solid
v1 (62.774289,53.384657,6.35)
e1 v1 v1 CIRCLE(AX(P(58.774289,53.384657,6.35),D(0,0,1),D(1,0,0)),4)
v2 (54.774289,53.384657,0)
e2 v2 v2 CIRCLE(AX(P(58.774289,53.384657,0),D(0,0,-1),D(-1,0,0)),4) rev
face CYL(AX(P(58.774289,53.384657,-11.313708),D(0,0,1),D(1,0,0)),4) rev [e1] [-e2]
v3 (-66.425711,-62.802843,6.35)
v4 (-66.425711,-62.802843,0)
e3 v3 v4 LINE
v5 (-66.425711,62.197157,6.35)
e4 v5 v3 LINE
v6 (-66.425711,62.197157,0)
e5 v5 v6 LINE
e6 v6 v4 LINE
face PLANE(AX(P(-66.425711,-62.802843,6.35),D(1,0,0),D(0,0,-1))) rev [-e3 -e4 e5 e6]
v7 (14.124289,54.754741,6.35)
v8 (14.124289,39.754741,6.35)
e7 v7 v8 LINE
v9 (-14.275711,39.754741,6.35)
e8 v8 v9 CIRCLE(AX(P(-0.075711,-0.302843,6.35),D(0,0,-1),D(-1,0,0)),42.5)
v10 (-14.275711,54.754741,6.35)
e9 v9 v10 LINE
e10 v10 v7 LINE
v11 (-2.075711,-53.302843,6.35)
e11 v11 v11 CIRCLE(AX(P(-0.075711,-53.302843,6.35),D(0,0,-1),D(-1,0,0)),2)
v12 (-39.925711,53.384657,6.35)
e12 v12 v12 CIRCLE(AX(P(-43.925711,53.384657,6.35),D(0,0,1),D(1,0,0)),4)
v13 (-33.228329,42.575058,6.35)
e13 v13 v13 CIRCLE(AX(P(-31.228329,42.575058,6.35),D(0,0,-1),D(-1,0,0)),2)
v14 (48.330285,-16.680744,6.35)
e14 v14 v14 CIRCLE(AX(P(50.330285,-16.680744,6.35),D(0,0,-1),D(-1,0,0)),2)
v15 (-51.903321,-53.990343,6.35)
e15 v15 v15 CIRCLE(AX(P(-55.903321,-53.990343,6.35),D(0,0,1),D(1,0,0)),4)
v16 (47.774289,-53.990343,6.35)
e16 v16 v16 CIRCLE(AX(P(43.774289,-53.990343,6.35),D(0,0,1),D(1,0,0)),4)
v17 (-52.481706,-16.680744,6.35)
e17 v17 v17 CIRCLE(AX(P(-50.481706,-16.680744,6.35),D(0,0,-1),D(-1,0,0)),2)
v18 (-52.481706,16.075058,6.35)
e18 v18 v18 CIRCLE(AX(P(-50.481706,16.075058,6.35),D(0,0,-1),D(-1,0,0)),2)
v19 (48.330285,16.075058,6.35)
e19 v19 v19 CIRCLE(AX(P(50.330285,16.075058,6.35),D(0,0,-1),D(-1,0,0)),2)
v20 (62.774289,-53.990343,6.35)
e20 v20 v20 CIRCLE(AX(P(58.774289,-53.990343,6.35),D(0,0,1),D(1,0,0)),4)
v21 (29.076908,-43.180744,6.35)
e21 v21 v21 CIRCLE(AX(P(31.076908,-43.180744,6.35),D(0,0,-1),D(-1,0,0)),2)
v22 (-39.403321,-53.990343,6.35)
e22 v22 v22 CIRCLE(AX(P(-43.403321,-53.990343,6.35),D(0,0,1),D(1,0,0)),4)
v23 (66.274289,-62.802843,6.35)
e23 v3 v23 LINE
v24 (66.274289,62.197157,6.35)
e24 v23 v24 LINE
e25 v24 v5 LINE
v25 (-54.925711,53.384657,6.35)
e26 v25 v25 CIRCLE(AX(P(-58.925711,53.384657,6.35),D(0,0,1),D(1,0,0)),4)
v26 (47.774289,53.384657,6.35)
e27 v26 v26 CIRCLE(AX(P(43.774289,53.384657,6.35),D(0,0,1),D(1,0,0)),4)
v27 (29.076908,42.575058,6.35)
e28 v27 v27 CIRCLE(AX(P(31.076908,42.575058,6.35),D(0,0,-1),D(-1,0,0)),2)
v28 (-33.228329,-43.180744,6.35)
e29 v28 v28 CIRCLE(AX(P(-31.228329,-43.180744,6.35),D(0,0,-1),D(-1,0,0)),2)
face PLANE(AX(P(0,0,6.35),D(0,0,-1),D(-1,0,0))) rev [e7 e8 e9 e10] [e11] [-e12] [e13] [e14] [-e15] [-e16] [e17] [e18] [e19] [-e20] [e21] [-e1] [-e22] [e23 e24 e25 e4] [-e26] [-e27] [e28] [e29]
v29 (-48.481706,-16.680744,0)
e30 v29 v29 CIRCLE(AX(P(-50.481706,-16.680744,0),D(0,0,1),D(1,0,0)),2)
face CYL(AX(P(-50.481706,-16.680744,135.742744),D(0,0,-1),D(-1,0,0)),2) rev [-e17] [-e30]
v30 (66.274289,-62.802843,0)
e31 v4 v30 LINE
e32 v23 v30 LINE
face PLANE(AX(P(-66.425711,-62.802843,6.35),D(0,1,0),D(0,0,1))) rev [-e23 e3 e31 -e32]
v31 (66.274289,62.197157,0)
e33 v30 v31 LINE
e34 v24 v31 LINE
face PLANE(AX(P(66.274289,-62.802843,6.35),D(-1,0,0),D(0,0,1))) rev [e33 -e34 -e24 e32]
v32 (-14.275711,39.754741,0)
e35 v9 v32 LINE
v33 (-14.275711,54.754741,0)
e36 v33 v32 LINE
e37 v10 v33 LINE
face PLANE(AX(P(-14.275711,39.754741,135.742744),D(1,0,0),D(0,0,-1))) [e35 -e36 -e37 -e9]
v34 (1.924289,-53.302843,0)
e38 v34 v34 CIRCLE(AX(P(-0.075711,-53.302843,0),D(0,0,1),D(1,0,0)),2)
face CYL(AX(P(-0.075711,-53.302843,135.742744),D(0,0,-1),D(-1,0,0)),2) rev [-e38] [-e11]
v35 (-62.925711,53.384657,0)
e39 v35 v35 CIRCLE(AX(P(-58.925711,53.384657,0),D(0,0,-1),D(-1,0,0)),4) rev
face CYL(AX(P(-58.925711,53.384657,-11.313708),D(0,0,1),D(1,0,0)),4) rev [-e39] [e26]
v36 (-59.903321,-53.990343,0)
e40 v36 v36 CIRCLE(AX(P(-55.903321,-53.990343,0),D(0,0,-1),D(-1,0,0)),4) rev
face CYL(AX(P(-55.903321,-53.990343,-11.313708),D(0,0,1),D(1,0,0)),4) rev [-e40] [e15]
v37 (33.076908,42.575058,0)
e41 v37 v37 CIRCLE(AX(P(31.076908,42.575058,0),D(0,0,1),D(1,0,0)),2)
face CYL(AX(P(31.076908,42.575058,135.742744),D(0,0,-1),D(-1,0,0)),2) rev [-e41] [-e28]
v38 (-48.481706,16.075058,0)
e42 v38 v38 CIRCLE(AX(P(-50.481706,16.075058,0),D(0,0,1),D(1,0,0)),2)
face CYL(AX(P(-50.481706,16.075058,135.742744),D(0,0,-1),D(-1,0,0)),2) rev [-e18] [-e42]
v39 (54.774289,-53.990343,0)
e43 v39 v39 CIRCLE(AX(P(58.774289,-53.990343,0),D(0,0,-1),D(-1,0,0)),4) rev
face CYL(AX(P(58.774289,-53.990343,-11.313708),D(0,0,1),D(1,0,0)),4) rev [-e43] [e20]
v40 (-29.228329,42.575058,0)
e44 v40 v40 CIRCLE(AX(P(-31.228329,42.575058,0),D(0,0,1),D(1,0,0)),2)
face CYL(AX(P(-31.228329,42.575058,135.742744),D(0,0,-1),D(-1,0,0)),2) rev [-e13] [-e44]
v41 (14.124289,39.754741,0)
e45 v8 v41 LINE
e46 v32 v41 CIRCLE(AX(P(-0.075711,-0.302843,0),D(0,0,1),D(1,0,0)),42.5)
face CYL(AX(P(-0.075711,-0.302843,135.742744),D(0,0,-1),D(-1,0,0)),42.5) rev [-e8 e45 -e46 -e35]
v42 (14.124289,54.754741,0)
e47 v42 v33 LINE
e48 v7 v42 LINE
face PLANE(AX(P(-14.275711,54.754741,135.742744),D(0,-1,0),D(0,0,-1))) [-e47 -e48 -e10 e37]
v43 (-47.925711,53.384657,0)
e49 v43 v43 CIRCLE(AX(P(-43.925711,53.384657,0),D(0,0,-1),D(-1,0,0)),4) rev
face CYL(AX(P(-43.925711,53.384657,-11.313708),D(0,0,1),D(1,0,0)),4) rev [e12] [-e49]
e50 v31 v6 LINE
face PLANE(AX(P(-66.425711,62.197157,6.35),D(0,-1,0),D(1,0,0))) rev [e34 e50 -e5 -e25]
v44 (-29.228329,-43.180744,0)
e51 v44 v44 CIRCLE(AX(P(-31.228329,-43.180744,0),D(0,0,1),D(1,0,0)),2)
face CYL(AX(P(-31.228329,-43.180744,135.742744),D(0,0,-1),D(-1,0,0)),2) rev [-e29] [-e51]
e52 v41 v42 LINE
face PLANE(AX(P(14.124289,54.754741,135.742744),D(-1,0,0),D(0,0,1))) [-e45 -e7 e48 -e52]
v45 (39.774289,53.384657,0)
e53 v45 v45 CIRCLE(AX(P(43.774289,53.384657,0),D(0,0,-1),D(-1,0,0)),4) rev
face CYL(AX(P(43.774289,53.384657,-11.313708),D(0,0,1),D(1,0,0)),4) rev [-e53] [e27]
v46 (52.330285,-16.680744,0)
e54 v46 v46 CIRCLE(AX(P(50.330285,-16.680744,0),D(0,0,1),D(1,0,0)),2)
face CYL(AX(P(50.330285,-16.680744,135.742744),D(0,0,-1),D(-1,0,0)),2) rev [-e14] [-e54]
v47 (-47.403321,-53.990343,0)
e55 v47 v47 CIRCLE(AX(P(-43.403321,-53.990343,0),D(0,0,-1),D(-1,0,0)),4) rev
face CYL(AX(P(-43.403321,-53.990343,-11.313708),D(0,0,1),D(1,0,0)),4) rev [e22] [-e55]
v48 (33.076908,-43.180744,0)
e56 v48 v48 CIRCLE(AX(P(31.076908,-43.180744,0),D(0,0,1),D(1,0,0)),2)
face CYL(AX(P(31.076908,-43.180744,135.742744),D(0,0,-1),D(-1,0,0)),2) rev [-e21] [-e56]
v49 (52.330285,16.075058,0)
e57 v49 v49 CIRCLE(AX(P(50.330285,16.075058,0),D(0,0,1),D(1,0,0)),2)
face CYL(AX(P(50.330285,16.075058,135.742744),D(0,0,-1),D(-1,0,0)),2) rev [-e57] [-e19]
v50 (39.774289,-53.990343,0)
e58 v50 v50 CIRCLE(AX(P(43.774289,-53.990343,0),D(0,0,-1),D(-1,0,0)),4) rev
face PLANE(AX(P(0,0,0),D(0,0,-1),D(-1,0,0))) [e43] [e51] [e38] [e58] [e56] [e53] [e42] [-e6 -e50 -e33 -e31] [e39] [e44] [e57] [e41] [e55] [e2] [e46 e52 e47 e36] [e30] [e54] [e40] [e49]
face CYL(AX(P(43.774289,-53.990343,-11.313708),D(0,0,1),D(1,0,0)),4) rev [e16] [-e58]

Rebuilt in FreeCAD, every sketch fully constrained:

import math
import FreeCAD as App
import Part
import Sketcher
from FreeCAD import Vector

doc = App.newDocument("Part")
params = doc.addObject("Spreadsheet::Sheet", "Params")
for row, (alias, value) in enumerate([
    ("sketch1_height", "125 mm"),
    ("sketch1_width", "132.7 mm"),
    ("pad1_length", "6.35 mm"),
    ("sketch2_diameter", "4 mm"),
    ("sketch2_radius", "42.5 mm"),
    ("sketch2_height", "15 mm"),
    ("sketch2_width", "28.4 mm"),
    ("pocket1_length", "6.35 mm"),
    ("sketch3_diameter", "8 mm"),
    ("pocket2_length", "6.35 mm"),
], start=1):
    params.set(f"A{row}", alias)
    params.set(f"B{row}", "=" + value)
    params.setAlias(f"B{row}", alias)

body = doc.addObject("PartDesign::Body", "Body")

# Sketch on XY plane
sketch1 = doc.addObject("Sketcher::SketchObject", "Sketch")
body.addObject(sketch1)
sketch1.AttachmentSupport = (doc.XY_Plane, [""])
sketch1.MapMode = "FlatFace"
sketch1.addGeometry([
    Part.LineSegment(Vector(-66, 62, 0), Vector(-66, -63, 0)),
    Part.LineSegment(Vector(-66, -63, 0), Vector(66, -63, 0)),
    Part.LineSegment(Vector(66, -63, 0), Vector(66, 62, 0)),
    Part.LineSegment(Vector(66, 62, 0), Vector(-66, 62, 0)),
], False)
sketch1.addConstraint([
    Sketcher.Constraint("Coincident", 0, 2, 1, 1),
    Sketcher.Constraint("Coincident", 1, 2, 2, 1),
    Sketcher.Constraint("Coincident", 2, 2, 3, 1),
    Sketcher.Constraint("Coincident", 3, 2, 0, 1),
    Sketcher.Constraint("Vertical", 0),
    Sketcher.Constraint("Horizontal", 1),
    Sketcher.Constraint("Vertical", 2),
    Sketcher.Constraint("Horizontal", 3),
    Sketcher.Constraint("DistanceY", 0, 2, 0, 1, 125.0),
    Sketcher.Constraint("DistanceX", 1, 1, 1, 2, 132.7),
    Sketcher.Constraint("DistanceX", 0, 2, -1, 1, 66.425711),
    Sketcher.Constraint("DistanceY", 0, 2, -1, 1, 62.802843),
])
sketch1.setExpression("Constraints[8]", "Params.sketch1_height")
sketch1.setExpression("Constraints[9]", "Params.sketch1_width")
pad1 = doc.addObject("PartDesign::Pad", "Pad")
body.addObject(pad1)
pad1.Profile = sketch1
pad1.setExpression("Length", "Params.pad1_length")

# Sketch on XY plane
sketch2 = doc.addObject("Sketcher::SketchObject", "Sketch001")
body.addObject(sketch2)
sketch2.AttachmentSupport = (doc.XY_Plane, [""])
sketch2.MapMode = "FlatFace"
sketch2.addGeometry([
    Part.Circle(Vector(-50.5, 16.1, 0), Vector(0, 0, 1), 2),  # 0
    Part.Circle(Vector(-50.5, -16.7, 0), Vector(0, 0, 1), 2),  # 1
    Part.Circle(Vector(-31.2, -43.2, 0), Vector(0, 0, 1), 2),  # 2
    Part.Circle(Vector(-0.1, -53.3, 0), Vector(0, 0, 1), 2),  # 3
    Part.Circle(Vector(31.1, -43.2, 0), Vector(0, 0, 1), 2),  # 4
    Part.Circle(Vector(50.3, -16.7, 0), Vector(0, 0, 1), 2),  # 5
    Part.Circle(Vector(50.3, 16.1, 0), Vector(0, 0, 1), 2),  # 6
    Part.Circle(Vector(31.1, 42.6, 0), Vector(0, 0, 1), 2),  # 7
    Part.Circle(Vector(-31.2, 42.6, 0), Vector(0, 0, 1), 2),  # 8
    Part.LineSegment(Vector(-14.3, 54.8, 0), Vector(-14.3, 39.8, 0)),  # 9
    Part.ArcOfCircle(Part.Circle(Vector(-0.1, -0.3, 0), Vector(0, 0, 1), 42.5), math.radians(110), math.radians(430)),  # 10
    Part.LineSegment(Vector(14.1, 39.8, 0), Vector(14.1, 54.8, 0)),  # 11
    Part.LineSegment(Vector(14.1, 54.8, 0), Vector(-14.3, 54.8, 0)),  # 12
], False)
sketch2.addConstraint([
    Sketcher.Constraint("Coincident", 9, 2, 10, 1),
    Sketcher.Constraint("Coincident", 10, 2, 11, 1),
    Sketcher.Constraint("Coincident", 11, 2, 12, 1),
    Sketcher.Constraint("Coincident", 12, 2, 9, 1),
    Sketcher.Constraint("Vertical", 9),
    Sketcher.Constraint("Vertical", 11),
    Sketcher.Constraint("Horizontal", 12),
    Sketcher.Constraint("Equal", 0, 1),
    Sketcher.Constraint("Equal", 1, 2),
    Sketcher.Constraint("Equal", 2, 3),
    Sketcher.Constraint("Equal", 3, 4),
    Sketcher.Constraint("Equal", 4, 5),
    Sketcher.Constraint("Equal", 5, 6),
    Sketcher.Constraint("Equal", 6, 7),
    Sketcher.Constraint("Equal", 7, 8),
    Sketcher.Constraint("Horizontal", 2, 3, 4, 3),
    Sketcher.Constraint("Horizontal", 1, 3, 5, 3),
    Sketcher.Constraint("Horizontal", 0, 3, 6, 3),
    Sketcher.Constraint("Horizontal", 7, 3, 8, 3),
    Sketcher.Constraint("Horizontal", 9, 2, 10, 2),
    Sketcher.Constraint("Vertical", 0, 3, 1, 3),
    Sketcher.Constraint("Vertical", 5, 3, 6, 3),
    Sketcher.Constraint("Vertical", 4, 3, 7, 3),
    Sketcher.Constraint("Vertical", 2, 3, 8, 3),
    Sketcher.Constraint("Vertical", 3, 3, 10, 3),
    Sketcher.Constraint("Diameter", 0, 4.0),
    Sketcher.Constraint("Radius", 10, 42.5),
    Sketcher.Constraint("DistanceY", 9, 2, 9, 1, 15.0),
    Sketcher.Constraint("DistanceX", 12, 2, 12, 1, 28.4),
    Sketcher.Constraint("DistanceY", 2, 3, 1, 3, 26.5),
    Sketcher.Constraint("DistanceY", 6, 3, 7, 3, 26.5),
    Sketcher.Constraint("DistanceY", 1, 3, 0, 3, 32.755801),
    Sketcher.Constraint("DistanceY", 3, 3, 2, 3, 10.122099),
    Sketcher.Constraint("DistanceY", 10, 3, 7, 3, 42.877901),
    Sketcher.Constraint("DistanceX", 2, 3, -1, 1, 31.228329),
    Sketcher.Constraint("DistanceX", 3, 3, -1, 1, 0.075711),
    Sketcher.Constraint("DistanceY", -1, 1, 9, 2, 39.754741),
    Sketcher.Constraint("DistanceX", 3, 3, 4, 3, 31.152618),
    Sketcher.Constraint("DistanceX", 1, 3, 5, 3, 100.811991),
    Sketcher.Constraint("DistanceX", 0, 3, -1, 1, 50.481706),
])
sketch2.setExpression("Constraints[25]", "Params.sketch2_diameter")
sketch2.setExpression("Constraints[26]", "Params.sketch2_radius")
sketch2.setExpression("Constraints[27]", "Params.sketch2_height")
sketch2.setExpression("Constraints[28]", "Params.sketch2_width")
pocket1 = doc.addObject("PartDesign::Pocket", "Pocket")
body.addObject(pocket1)
pocket1.Profile = sketch2
pocket1.setExpression("Length", "Params.pocket1_length")
pocket1.Reversed = True

# Sketch on XY plane
sketch3 = doc.addObject("Sketcher::SketchObject", "Sketch002")
body.addObject(sketch3)
sketch3.AttachmentSupport = (doc.XY_Plane, [""])
sketch3.MapMode = "FlatFace"
sketch3.AttachmentOffset = App.Placement(Vector(0, 0, 6.35), App.Rotation())
sketch3.addGeometry([
    Part.Circle(Vector(58.8, -54, 0), Vector(0, 0, 1), 4),  # 0
    Part.Circle(Vector(43.8, -54, 0), Vector(0, 0, 1), 4),  # 1
    Part.Circle(Vector(-55.9, -54, 0), Vector(0, 0, 1), 4),  # 2
    Part.Circle(Vector(-43.4, -54, 0), Vector(0, 0, 1), 4),  # 3
    Part.Circle(Vector(-58.9, 53.4, 0), Vector(0, 0, 1), 4),  # 4
    Part.Circle(Vector(-43.9, 53.4, 0), Vector(0, 0, 1), 4),  # 5
    Part.Circle(Vector(43.8, 53.4, 0), Vector(0, 0, 1), 4),  # 6
    Part.Circle(Vector(58.8, 53.4, 0), Vector(0, 0, 1), 4),  # 7
], False)
sketch3.addConstraint([
    Sketcher.Constraint("Equal", 0, 1),
    Sketcher.Constraint("Equal", 1, 2),
    Sketcher.Constraint("Equal", 2, 3),
    Sketcher.Constraint("Equal", 3, 4),
    Sketcher.Constraint("Equal", 4, 5),
    Sketcher.Constraint("Equal", 5, 6),
    Sketcher.Constraint("Equal", 6, 7),
    Sketcher.Constraint("Horizontal", 0, 3, 1, 3),
    Sketcher.Constraint("Horizontal", 1, 3, 2, 3),
    Sketcher.Constraint("Horizontal", 2, 3, 3, 3),
    Sketcher.Constraint("Horizontal", 4, 3, 5, 3),
    Sketcher.Constraint("Horizontal", 5, 3, 6, 3),
    Sketcher.Constraint("Horizontal", 6, 3, 7, 3),
    Sketcher.Constraint("Vertical", 1, 3, 6, 3),
    Sketcher.Constraint("Vertical", 0, 3, 7, 3),
    Sketcher.Constraint("Diameter", 0, 8.0),
    Sketcher.Constraint("DistanceX", 1, 3, 0, 3, 15.0),
    Sketcher.Constraint("DistanceX", 4, 3, 5, 3, 15.0),
    Sketcher.Constraint("DistanceX", 2, 3, 3, 3, 12.5),
    Sketcher.Constraint("DistanceX", 4, 3, 1, 3, 102.7),
    Sketcher.Constraint("DistanceY", 2, 3, 4, 3, 107.375),
    Sketcher.Constraint("DistanceX", -1, 1, 0, 3, 58.774289),
    Sketcher.Constraint("DistanceX", 2, 3, -1, 1, 55.903321),
    Sketcher.Constraint("DistanceY", 0, 3, -1, 1, 53.990343),
])
sketch3.setExpression("Constraints[15]", "Params.sketch3_diameter")
pocket2 = doc.addObject("PartDesign::Pocket", "Pocket001")
body.addObject(pocket2)
pocket2.Profile = sketch3
pocket2.setExpression("Length", "Params.pocket2_length")

doc.recompute()
